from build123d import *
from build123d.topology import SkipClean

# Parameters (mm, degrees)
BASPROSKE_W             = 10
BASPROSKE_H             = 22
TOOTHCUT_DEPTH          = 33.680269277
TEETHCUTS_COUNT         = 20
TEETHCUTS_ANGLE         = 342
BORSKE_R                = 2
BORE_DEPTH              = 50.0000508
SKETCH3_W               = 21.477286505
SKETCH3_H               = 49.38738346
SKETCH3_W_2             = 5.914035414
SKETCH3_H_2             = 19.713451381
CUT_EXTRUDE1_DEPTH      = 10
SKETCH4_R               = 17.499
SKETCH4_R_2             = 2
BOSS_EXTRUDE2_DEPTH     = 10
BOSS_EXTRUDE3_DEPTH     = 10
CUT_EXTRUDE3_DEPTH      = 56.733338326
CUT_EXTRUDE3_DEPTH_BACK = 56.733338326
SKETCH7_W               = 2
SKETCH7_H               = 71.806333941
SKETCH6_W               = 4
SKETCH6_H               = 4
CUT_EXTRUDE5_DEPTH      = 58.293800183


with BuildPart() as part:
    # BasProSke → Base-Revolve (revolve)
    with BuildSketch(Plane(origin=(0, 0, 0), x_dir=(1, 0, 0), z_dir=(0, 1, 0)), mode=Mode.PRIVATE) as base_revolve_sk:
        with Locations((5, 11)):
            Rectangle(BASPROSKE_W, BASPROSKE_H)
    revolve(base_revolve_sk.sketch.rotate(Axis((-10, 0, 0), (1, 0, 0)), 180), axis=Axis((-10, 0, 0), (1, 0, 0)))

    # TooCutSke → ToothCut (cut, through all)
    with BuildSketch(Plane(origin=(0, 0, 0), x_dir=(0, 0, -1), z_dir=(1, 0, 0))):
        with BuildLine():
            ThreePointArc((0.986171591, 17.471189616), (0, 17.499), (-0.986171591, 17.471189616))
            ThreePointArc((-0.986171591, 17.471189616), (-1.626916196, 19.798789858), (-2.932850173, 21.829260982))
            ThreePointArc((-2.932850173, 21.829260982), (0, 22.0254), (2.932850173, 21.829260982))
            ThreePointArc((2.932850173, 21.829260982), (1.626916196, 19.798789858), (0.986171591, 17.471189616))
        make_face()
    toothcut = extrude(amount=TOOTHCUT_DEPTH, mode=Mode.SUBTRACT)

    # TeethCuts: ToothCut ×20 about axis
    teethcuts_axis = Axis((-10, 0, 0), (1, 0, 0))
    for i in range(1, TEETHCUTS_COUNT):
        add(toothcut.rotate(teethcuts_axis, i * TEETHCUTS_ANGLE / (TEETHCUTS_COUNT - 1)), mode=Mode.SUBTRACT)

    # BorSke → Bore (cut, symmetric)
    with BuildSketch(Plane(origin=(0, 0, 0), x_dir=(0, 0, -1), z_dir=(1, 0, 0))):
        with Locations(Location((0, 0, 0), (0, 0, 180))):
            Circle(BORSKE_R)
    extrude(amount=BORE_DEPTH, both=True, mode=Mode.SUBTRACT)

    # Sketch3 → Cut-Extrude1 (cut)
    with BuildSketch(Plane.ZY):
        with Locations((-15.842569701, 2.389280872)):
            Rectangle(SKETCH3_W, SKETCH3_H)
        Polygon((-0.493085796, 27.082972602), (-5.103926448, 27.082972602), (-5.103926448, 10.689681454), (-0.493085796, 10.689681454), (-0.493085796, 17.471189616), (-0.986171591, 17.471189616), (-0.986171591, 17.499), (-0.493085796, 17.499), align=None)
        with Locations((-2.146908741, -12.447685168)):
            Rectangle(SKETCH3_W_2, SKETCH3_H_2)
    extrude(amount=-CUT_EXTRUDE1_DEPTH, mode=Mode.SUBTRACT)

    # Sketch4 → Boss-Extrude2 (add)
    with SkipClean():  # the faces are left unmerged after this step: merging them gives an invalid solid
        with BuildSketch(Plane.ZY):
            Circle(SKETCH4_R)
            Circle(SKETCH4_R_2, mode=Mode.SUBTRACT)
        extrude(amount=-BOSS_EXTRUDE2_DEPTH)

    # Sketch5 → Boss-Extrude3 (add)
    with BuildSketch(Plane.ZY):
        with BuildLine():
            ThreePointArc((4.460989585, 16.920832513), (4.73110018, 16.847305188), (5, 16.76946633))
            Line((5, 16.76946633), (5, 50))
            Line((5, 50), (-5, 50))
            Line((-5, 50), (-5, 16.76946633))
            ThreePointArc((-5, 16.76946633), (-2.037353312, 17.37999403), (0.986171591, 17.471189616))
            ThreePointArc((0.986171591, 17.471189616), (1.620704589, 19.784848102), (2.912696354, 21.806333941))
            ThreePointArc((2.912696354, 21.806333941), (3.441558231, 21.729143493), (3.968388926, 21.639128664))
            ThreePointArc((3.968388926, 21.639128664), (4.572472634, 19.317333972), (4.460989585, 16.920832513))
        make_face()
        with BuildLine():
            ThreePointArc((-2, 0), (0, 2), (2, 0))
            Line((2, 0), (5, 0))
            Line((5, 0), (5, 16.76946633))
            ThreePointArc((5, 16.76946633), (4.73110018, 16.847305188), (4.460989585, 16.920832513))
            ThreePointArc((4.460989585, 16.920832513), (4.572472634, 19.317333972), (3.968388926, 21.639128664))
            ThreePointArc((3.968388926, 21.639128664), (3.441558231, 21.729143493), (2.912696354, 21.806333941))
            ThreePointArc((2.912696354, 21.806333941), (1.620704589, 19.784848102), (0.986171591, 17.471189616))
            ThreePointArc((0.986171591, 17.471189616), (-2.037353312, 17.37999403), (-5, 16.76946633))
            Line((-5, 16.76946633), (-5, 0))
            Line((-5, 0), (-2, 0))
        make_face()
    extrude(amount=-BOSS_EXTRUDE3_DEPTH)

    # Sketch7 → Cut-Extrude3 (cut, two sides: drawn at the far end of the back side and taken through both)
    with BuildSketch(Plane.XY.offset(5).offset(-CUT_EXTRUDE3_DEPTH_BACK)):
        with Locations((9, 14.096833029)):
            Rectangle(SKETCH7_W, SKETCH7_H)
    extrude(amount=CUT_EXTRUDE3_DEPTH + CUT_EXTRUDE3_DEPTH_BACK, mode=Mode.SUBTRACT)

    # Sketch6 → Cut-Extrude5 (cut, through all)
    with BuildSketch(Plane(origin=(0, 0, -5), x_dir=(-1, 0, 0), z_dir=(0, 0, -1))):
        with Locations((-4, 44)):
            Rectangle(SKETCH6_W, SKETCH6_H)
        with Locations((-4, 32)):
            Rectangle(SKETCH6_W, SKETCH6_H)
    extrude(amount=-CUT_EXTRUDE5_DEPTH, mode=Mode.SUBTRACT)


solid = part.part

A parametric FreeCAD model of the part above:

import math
import FreeCAD as App
import Part
import Sketcher
Q = App.Units.Quantity


def add_polygon(sketch, points):
    """Adds a closed chain of lines whose ends are joined by coincident constraints."""
    first, n = sketch.GeometryCount, len(points)
    for a, b in zip(points, points[1:] + points[:1]):
        sketch.addGeometry(Part.LineSegment(App.Vector(*a, 0), App.Vector(*b, 0)), False)
    for i in range(n):
        sketch.addConstraint(Sketcher.Constraint("Coincident", first + i, 2, first + (i + 1) % n, 1))

doc = App.newDocument("Part")
body = doc.addObject("PartDesign::Body", "Body")

# Sketch on XZ plane
sketch1 = doc.addObject("Sketcher::SketchObject", "Sketch")
body.addObject(sketch1)
sketch1.AttachmentSupport = (doc.XZ_Plane, [""])
sketch1.MapMode = "FlatFace"
add_polygon(sketch1, [(0, -22), (0, 0), (10, 0), (10, -22)])  # lines 0-3
sketch1.addConstraint([
    Sketcher.Constraint("Vertical", 0),
    Sketcher.Constraint("Horizontal", 1),
    Sketcher.Constraint("Vertical", 2),
    Sketcher.Constraint("Horizontal", 3),
    Sketcher.Constraint("Coincident", 0, 2, -1, 1),
    Sketcher.Constraint("DistanceX", 1, 1, 1, 2, Q("10 mm")),
    Sketcher.Constraint("DistanceY", 0, 1, 0, 2, Q("22 mm")),
])
revolution = doc.addObject("PartDesign::Revolution", "Revolution")
body.addObject(revolution)
revolution.Profile = sketch1
revolution.ReferenceAxis = (sketch1, ["H_Axis"])
revolution.Angle = 360

# Sketch on YZ plane
sketch2 = doc.addObject("Sketcher::SketchObject", "Sketch001")
body.addObject(sketch2)
sketch2.AttachmentSupport = (doc.YZ_Plane, [""])
sketch2.MapMode = "FlatFace"
sketch2.addGeometry([
    Part.ArcOfCircle(Part.Circle(App.Vector(0, 0, 0), App.Vector(0, 0, 1), 17.5), math.radians(-3.23), math.radians(3.23)),
    Part.ArcOfCircle(Part.Circle(App.Vector(16.5, -8.9, 0), App.Vector(0, 0, 1), 8), math.radians(49), math.radians(83)),
    Part.ArcOfCircle(Part.Circle(App.Vector(0, 0, 0), App.Vector(0, 0, 1), 22), math.radians(-7.65), math.radians(7.65)),
    Part.ArcOfCircle(Part.Circle(App.Vector(16.5, 8.9, 0), App.Vector(0, 0, 1), 8), math.radians(-83), math.radians(-49)),
], False)
sketch2.addConstraint([
    Sketcher.Constraint("Coincident", 0, 1, 1, 2),
    Sketcher.Constraint("Coincident", 1, 1, 2, 1),
    Sketcher.Constraint("Coincident", 2, 2, 3, 2),
    Sketcher.Constraint("Coincident", 3, 1, 0, 2),
    Sketcher.Constraint("Coincident", 0, 3, -1, 1),
    Sketcher.Constraint("Coincident", 2, 3, -1, 1),
    Sketcher.Constraint("Equal", 1, 3),
    Sketcher.Constraint("Symmetric", 1, 3, 3, 3, -1),
    Sketcher.Constraint("Radius", 1, Q("8 mm")),
    Sketcher.Constraint("Radius", 0, Q("17.499 mm")),
    Sketcher.Constraint("Radius", 2, Q("22.0254 mm")),
    Sketcher.Constraint("DistanceY", 1, 1, 2, 2, Q("5.8657 mm")),
    Sketcher.Constraint("DistanceX", -1, 1, 1, 3, Q("16.536031 mm")),
])
pocket1 = doc.addObject("PartDesign::Pocket", "Pocket")
body.addObject(pocket1)
pocket1.Profile = sketch2
pocket1.Type = "ThroughAll"
pocket1.Reversed = True
doc.recompute()

polarpattern = doc.addObject("PartDesign::PolarPattern", "PolarPattern")
body.addObject(polarpattern)
polarpattern.Originals = [pocket1]
polarpattern.Axis = (doc.X_Axis, [""])
polarpattern.Angle = 360
polarpattern.Occurrences = 20
body.Tip = polarpattern

# Sketch on YZ plane
sketch3 = doc.addObject("Sketcher::SketchObject", "Sketch002")
body.addObject(sketch3)
sketch3.AttachmentSupport = (doc.YZ_Plane, [""])
sketch3.MapMode = "FlatFace"
sketch3.addGeometry(Part.Circle(App.Vector(0, 0, 0), App.Vector(0, 0, 1), 2), False)
sketch3.addConstraint([
    Sketcher.Constraint("Coincident", 0, 3, -1, 1),
    Sketcher.Constraint("Diameter", 0, Q("4 mm")),
])
pocket2 = doc.addObject("PartDesign::Pocket", "Pocket001")
body.addObject(pocket2)
pocket2.Profile = sketch3
pocket2.Length = 100.000102
pocket2.Midplane = True

# Sketch on YZ plane
sketch4 = doc.addObject("Sketcher::SketchObject", "Sketch003")
body.addObject(sketch4)
sketch4.AttachmentSupport = (doc.YZ_Plane, [""])
sketch4.MapMode = "FlatFace"
add_polygon(sketch4, [(27.083, -26.581), (-22.304, -26.581), (-22.304, -5.104), (-22.304, 0.81), (-2.591, 0.81), (-2.591, -5.104), (10.69, -5.104), (10.69, -0.493), (17.471, -0.493), (17.471, -0.986), (17.499, -0.986), (17.499, -0.493), (27.083, -0.493)])  # lines 0-12
sketch4.addConstraint([
    Sketcher.Constraint("Horizontal", 0),
    Sketcher.Constraint("Vertical", 1),
    Sketcher.Constraint("Vertical", 2),
    Sketcher.Constraint("Horizontal", 3),
    Sketcher.Constraint("Vertical", 4),
    Sketcher.Constraint("Horizontal", 5),
    Sketcher.Constraint("Vertical", 6),
    Sketcher.Constraint("Horizontal", 7),
    Sketcher.Constraint("Vertical", 8),
    Sketcher.Constraint("Horizontal", 9),
    Sketcher.Constraint("Vertical", 10),
    Sketcher.Constraint("Horizontal", 11),
    Sketcher.Constraint("Vertical", 12),
    Sketcher.Constraint("Horizontal", 1, 2, 4, 2),
    Sketcher.Constraint("Horizontal", 7, 2, 10, 2),
    Sketcher.Constraint("DistanceX", -1, 1, 9, 2, Q("17.499 mm")),
    Sketcher.Constraint("DistanceX", 3, 1, 3, 2, Q("19.713451 mm")),
    Sketcher.Constraint("DistanceX", 5, 1, 5, 2, Q("13.280641 mm")),
    Sketcher.Constraint("DistanceX", 7, 1, 7, 2, Q("6.781508 mm")),
    Sketcher.Constraint("DistanceX", 9, 1, 9, 2, Q("0.02781 mm")),
    Sketcher.Constraint("DistanceY", 6, 1, 6, 2, Q("4.610841 mm")),
    Sketcher.Constraint("DistanceX", 0, 2, 0, 1, Q("49.387383 mm")),
    Sketcher.Constraint("DistanceY", 1, 1, 1, 2, Q("21.477287 mm")),
    Sketcher.Constraint("DistanceY", 2, 1, 2, 2, Q("5.914035 mm")),
    Sketcher.Constraint("DistanceY", 8, 2, 8, 1, Q("0.493086 mm")),
    Sketcher.Constraint("DistanceY", -1, 1, 2, 2, Q("0.810109 mm")),
])
pocket3 = doc.addObject("PartDesign::Pocket", "Pocket002")
body.addObject(pocket3)
pocket3.Profile = sketch4
pocket3.Length = 10
pocket3.Reversed = True

# Sketch on YZ plane
sketch5 = doc.addObject("Sketcher::SketchObject", "Sketch004")
body.addObject(sketch5)
sketch5.AttachmentSupport = (doc.YZ_Plane, [""])
sketch5.MapMode = "FlatFace"
sketch5.addGeometry([
    Part.Circle(App.Vector(0, 0, 0), App.Vector(0, 0, 1), 17.5),
    Part.Circle(App.Vector(0, 0, 0), App.Vector(0, 0, 1), 2),
], False)
sketch5.addConstraint([
    Sketcher.Constraint("Coincident", 0, 3, -1, 1),
    Sketcher.Constraint("Coincident", 1, 3, -1, 1),
    Sketcher.Constraint("Diameter", 1, Q("4 mm")),
    Sketcher.Constraint("Diameter", 0, Q("34.998 mm")),
])
pad1 = doc.addObject("PartDesign::Pad", "Pad")
body.addObject(pad1)
pad1.Profile = sketch5
pad1.Length = 10

# Sketch on YZ plane
sketch6 = doc.addObject("Sketcher::SketchObject", "Sketch005")
body.addObject(sketch6)
sketch6.AttachmentSupport = (doc.YZ_Plane, [""])
sketch6.MapMode = "FlatFace"
sketch6.addGeometry([
    Part.LineSegment(App.Vector(50, 5, 0), App.Vector(50, -5, 0)),  # 0
    Part.LineSegment(App.Vector(50, -5, 0), App.Vector(0, -5, 0)),  # 1
    Part.LineSegment(App.Vector(0, -5, 0), App.Vector(0, -2, 0)),  # 2
    Part.ArcOfCircle(Part.Circle(App.Vector(0, 0, 0), App.Vector(0, 0, 1), 2), math.radians(-90), math.radians(90)),  # 3
    Part.LineSegment(App.Vector(0, 2, 0), App.Vector(0, 5, 0)),  # 4
    Part.LineSegment(App.Vector(0, 5, 0), App.Vector(50, 5, 0)),  # 5
], False)
sketch6.addConstraint([
    Sketcher.Constraint("Coincident", 0, 2, 1, 1),
    Sketcher.Constraint("Coincident", 1, 2, 2, 1),
    Sketcher.Constraint("Coincident", 2, 2, 3, 1),
    Sketcher.Constraint("Coincident", 3, 2, 4, 1),
    Sketcher.Constraint("Coincident", 4, 2, 5, 1),
    Sketcher.Constraint("Coincident", 5, 2, 0, 1),
    Sketcher.Constraint("Vertical", 0),
    Sketcher.Constraint("Horizontal", 1),
    Sketcher.Constraint("Vertical", 2),
    Sketcher.Constraint("Vertical", 4),
    Sketcher.Constraint("Horizontal", 5),
    Sketcher.Constraint("Coincident", 3, 3, -1, 1),
    Sketcher.Constraint("Symmetric", 1, 2, 4, 2, -1, 1),
    Sketcher.Constraint("PointOnObject", 1, 2, -2),
    Sketcher.Constraint("Radius", 3, Q("2 mm")),
    Sketcher.Constraint("DistanceX", 1, 2, 1, 1, Q("50 mm")),
    Sketcher.Constraint("DistanceY", 0, 2, 0, 1, Q("10 mm")),
])
pad2 = doc.addObject("PartDesign::Pad", "Pad001")
body.addObject(pad2)
pad2.Profile = sketch6
pad2.Length = 10

# Sketch on XY plane
sketch7 = doc.addObject("Sketcher::SketchObject", "Sketch006")
body.addObject(sketch7)
sketch7.AttachmentSupport = (doc.XY_Plane, [""])
sketch7.MapMode = "FlatFace"
sketch7.AttachmentOffset = App.Placement(App.Vector(0, 0, 5), App.Rotation())
add_polygon(sketch7, [(8, 50), (8, -21.8), (10, -21.8), (10, 50)])  # lines 0-3
sketch7.addConstraint([
    Sketcher.Constraint("Vertical", 0),
    Sketcher.Constraint("Horizontal", 1),
    Sketcher.Constraint("Vertical", 2),
    Sketcher.Constraint("Horizontal", 3),
    Sketcher.Constraint("DistanceX", 1, 1, 1, 2, Q("2 mm")),
    Sketcher.Constraint("DistanceX", -1, 1, 0, 2, Q("8 mm")),
    Sketcher.Constraint("DistanceY", -1, 1, 2, 2, Q("50 mm")),
    Sketcher.Constraint("DistanceY", 0, 2, 0, 1, Q("71.806334 mm")),
])
pocket4 = doc.addObject("PartDesign::Pocket", "Pocket003")
body.addObject(pocket4)
pocket4.Profile = sketch7
pocket4.Type = "ThroughAll"
pocket4.Midplane = True

# Sketch on XY plane
sketch8 = doc.addObject("Sketcher::SketchObject", "Sketch007")
body.addObject(sketch8)
sketch8.AttachmentSupport = (doc.XY_Plane, [""])
sketch8.MapMode = "FlatFace"
sketch8.AttachmentOffset = App.Placement(App.Vector(0, 0, -5), App.Rotation())
add_polygon(sketch8, [(6, 46), (6, 42), (2, 42), (2, 46)])  # lines 0-3
add_polygon(sketch8, [(6, 34), (6, 30), (2, 30), (2, 34)])  # lines 4-7
sketch8.addConstraint([
    Sketcher.Constraint("Vertical", 0),
    Sketcher.Constraint("Horizontal", 1),
    Sketcher.Constraint("Vertical", 2),
    Sketcher.Constraint("Horizontal", 3),
    Sketcher.Constraint("Vertical", 4),
    Sketcher.Constraint("Horizontal", 5),
    Sketcher.Constraint("Vertical", 6),
    Sketcher.Constraint("Horizontal", 7),
    Sketcher.Constraint("Vertical", 3, 2, 4, 2),
    Sketcher.Constraint("Vertical", 2, 2, 5, 2),
    Sketcher.Constraint("Equal", 7, 0),
    Sketcher.Constraint("Equal", 2, 4),
    Sketcher.Constraint("DistanceX", 1, 2, 1, 1, Q("4 mm")),
    Sketcher.Constraint("DistanceX", -1, 1, 0, 2, Q("6 mm")),
    Sketcher.Constraint("DistanceY", -1, 1, 0, 2, Q("42 mm")),
    Sketcher.Constraint("DistanceY", -1, 1, 4, 2, Q("30 mm")),
])
pocket5 = doc.addObject("PartDesign::Pocket", "Pocket004")
body.addObject(pocket5)
pocket5.Profile = sketch8
pocket5.Type = "ThroughAll"
pocket5.Reversed = True

doc.recompute()
